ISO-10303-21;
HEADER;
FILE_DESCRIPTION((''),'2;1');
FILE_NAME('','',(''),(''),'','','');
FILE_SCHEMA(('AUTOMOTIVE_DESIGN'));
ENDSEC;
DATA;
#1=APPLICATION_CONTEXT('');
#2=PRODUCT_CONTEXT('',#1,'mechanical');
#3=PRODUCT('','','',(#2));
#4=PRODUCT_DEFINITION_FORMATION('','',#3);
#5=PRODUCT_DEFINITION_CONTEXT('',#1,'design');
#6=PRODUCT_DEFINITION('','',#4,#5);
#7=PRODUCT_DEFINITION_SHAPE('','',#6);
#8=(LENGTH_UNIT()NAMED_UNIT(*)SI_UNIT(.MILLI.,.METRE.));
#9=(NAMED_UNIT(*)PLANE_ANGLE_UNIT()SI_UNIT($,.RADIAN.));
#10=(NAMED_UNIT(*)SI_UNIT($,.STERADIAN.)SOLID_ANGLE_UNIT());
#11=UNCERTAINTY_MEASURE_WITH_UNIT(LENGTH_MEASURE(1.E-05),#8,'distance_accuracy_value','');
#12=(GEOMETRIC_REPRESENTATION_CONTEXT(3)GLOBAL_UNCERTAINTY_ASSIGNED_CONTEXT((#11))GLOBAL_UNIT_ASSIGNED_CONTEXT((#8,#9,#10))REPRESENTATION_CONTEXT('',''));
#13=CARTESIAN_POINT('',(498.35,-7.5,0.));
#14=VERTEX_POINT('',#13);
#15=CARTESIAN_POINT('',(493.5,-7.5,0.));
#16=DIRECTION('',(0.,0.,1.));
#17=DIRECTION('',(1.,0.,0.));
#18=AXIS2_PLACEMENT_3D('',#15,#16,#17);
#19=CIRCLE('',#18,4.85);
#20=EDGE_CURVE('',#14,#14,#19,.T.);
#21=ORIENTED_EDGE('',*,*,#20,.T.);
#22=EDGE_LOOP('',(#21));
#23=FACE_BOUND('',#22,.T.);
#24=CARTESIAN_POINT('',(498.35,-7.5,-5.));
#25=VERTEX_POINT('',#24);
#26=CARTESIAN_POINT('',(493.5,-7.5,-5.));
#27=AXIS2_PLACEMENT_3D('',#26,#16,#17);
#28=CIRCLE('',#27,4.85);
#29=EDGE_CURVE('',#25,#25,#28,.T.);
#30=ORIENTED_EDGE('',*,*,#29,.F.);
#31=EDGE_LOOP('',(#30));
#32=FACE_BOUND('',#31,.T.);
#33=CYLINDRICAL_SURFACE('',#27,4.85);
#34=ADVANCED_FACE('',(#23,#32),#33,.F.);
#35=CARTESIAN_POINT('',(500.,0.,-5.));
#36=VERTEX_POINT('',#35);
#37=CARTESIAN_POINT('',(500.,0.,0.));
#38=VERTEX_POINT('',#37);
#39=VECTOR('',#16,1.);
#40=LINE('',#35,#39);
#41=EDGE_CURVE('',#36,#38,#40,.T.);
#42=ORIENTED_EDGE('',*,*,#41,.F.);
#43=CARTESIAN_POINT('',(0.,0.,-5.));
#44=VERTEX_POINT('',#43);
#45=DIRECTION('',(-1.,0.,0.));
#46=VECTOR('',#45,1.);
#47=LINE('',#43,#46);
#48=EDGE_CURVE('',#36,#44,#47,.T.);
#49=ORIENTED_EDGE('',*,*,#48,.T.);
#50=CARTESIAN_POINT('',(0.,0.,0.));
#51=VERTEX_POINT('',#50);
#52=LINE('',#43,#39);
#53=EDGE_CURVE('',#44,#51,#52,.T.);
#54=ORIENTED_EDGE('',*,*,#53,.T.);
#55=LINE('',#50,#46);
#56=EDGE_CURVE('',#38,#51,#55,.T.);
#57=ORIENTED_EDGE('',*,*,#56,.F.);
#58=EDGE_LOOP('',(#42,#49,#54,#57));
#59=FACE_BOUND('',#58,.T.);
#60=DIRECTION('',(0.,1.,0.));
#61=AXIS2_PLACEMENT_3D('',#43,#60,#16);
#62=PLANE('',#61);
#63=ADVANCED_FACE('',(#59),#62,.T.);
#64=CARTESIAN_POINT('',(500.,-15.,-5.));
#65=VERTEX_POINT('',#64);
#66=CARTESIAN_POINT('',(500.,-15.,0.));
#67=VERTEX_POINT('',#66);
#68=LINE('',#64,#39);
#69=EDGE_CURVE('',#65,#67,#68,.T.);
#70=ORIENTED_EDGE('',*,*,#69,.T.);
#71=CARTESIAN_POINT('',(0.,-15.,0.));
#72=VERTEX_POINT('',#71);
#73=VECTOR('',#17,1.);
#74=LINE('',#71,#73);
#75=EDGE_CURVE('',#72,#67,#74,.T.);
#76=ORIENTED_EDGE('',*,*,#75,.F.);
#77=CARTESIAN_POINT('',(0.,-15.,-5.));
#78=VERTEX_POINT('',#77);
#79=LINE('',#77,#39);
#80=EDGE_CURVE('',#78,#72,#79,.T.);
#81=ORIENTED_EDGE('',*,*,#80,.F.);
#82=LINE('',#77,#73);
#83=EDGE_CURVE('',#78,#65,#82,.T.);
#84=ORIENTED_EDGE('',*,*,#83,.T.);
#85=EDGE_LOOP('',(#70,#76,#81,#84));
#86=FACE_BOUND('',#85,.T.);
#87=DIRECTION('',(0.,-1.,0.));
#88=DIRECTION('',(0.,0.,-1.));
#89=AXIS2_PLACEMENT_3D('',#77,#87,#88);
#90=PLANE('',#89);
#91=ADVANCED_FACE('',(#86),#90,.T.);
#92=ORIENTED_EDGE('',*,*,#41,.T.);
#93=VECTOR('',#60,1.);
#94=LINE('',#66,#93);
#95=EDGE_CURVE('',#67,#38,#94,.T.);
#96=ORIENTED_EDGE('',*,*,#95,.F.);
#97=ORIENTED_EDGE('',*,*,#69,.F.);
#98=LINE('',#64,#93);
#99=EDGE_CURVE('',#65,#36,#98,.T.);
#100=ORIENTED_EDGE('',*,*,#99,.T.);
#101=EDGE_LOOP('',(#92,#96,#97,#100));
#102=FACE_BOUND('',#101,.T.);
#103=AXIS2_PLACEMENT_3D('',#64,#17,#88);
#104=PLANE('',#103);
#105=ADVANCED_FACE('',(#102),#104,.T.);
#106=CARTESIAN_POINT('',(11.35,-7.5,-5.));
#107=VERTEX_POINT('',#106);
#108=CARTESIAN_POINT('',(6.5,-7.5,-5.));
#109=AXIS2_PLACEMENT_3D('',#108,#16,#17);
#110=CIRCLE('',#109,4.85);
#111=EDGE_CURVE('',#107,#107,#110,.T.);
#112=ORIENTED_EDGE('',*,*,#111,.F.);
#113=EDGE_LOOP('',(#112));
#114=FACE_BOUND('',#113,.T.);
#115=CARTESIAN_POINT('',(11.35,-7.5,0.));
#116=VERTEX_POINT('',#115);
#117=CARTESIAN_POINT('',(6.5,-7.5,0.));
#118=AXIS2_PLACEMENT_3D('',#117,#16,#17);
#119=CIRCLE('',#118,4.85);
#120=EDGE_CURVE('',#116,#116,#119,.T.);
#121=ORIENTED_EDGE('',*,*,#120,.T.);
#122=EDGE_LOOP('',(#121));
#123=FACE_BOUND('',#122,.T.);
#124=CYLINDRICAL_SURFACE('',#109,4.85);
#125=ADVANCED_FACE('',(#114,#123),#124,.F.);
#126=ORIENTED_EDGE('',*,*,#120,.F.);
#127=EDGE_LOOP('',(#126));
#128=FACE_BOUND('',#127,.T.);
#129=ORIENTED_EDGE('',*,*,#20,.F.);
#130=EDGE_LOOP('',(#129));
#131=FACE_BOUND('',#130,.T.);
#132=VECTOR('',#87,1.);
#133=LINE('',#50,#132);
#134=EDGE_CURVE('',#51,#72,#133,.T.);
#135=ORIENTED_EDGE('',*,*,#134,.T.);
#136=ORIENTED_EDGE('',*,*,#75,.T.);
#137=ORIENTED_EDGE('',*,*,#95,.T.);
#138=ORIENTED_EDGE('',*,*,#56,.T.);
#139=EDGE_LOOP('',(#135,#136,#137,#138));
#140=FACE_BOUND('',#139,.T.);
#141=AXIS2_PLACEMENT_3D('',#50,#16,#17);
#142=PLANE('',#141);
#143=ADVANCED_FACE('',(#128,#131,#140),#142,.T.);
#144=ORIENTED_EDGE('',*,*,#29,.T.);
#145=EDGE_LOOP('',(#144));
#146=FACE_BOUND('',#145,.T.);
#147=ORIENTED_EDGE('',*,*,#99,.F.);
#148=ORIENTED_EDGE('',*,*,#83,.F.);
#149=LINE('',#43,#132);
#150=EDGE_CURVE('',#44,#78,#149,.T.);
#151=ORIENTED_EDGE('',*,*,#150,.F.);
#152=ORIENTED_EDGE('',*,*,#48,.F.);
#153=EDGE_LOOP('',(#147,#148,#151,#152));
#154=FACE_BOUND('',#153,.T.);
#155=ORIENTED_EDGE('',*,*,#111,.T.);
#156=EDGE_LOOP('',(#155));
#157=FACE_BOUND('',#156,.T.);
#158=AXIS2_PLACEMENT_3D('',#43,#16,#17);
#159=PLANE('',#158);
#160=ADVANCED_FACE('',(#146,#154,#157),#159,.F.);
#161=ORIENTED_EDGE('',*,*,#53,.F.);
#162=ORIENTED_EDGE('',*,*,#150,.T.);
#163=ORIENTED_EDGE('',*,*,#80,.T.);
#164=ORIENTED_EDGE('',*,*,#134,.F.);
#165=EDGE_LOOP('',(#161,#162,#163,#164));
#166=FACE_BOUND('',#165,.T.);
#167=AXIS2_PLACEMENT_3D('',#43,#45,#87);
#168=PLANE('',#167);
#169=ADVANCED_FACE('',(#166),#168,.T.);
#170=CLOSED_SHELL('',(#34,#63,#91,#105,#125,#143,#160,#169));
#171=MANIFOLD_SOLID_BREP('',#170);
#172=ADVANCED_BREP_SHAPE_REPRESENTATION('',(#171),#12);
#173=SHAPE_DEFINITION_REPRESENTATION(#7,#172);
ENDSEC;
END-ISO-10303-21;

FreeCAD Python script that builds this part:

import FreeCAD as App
import Part
import Sketcher
from FreeCAD import Vector
Q = App.Units.Quantity


def add_polygon(sketch, points):
    """Adds a closed chain of lines whose ends are joined by coincident constraints."""
    first, n = sketch.GeometryCount, len(points)
    for a, b in zip(points, points[1:] + points[:1]):
        sketch.addGeometry(Part.LineSegment(App.Vector(*a, 0), App.Vector(*b, 0)), False)
    for i in range(n):
        sketch.addConstraint(Sketcher.Constraint("Coincident", first + i, 2, first + (i + 1) % n, 1))

doc = App.newDocument("Part")
params = doc.addObject("Spreadsheet::Sheet", "Params")
for row, (alias, value) in enumerate([
    ("sketch1_width", "500 mm"),
    ("sketch1_height", "15 mm"),
    ("pad1_length", "5 mm"),
    ("sketch2_diameter", "9.7 mm"),
    ("pocket1_length", "5 mm"),
], start=1):
    params.set(f"A{row}", alias)
    params.set(f"B{row}", "=" + value)
    params.setAlias(f"B{row}", alias)

body = doc.addObject("PartDesign::Body", "Body")

sketch1 = body.newObject("Sketcher::SketchObject", "Sketch")
sketch1.AttachmentSupport = (doc.getObject("XY_Plane"), [""])
sketch1.MapMode = "FlatFace"
add_polygon(sketch1, [(0, 0), (0, -15), (500, -15), (500, 0)])
sketch1.addConstraint([
    Sketcher.Constraint("Vertical", 0),
    Sketcher.Constraint("Horizontal", 1),
    Sketcher.Constraint("Vertical", 2),
    Sketcher.Constraint("Horizontal", 3),
    Sketcher.Constraint("Coincident", 3, 2, -1, 1),
    Sketcher.Constraint("DistanceX", 1, 1, 1, 2, Q("500 mm")),
    Sketcher.Constraint("DistanceY", 0, 2, 0, 1, Q("15 mm")),
])
sketch1.setExpression("Constraints[9]", "Params.sketch1_width")
sketch1.setExpression("Constraints[10]", "Params.sketch1_height")
pad1 = body.newObject("PartDesign::Pad", "Pad")
pad1.Profile = sketch1
pad1.setExpression("Length", "Params.pad1_length")
pad1.Reversed = True

sketch2 = body.newObject("Sketcher::SketchObject", "Sketch001")
sketch2.AttachmentSupport = (doc.getObject("XY_Plane"), [""])
sketch2.MapMode = "FlatFace"
sketch2.addGeometry([
    Part.Circle(Vector(6.5, -7.5, 0), Vector(0, 0, 1), 4.8),
    Part.Circle(Vector(493.5, -7.5, 0), Vector(0, 0, 1), 4.8),
], False)
sketch2.addConstraint([
    Sketcher.Constraint("Equal", 0, 1),
    Sketcher.Constraint("Horizontal", 0, 3, 1, 3),
    Sketcher.Constraint("Diameter", 0, Q("9.7 mm")),
    Sketcher.Constraint("DistanceX", 0, 3, 1, 3, Q("487 mm")),
    Sketcher.Constraint("DistanceX", -1, 1, 0, 3, Q("6.5 mm")),
    Sketcher.Constraint("DistanceY", 0, 3, -1, 1, Q("7.5 mm")),
])
sketch2.setExpression("Constraints[2]", "Params.sketch2_diameter")
pocket1 = body.newObject("PartDesign::Pocket", "Pocket")
pocket1.Profile = sketch2
pocket1.setExpression("Length", "Params.pocket1_length")

doc.recompute()
